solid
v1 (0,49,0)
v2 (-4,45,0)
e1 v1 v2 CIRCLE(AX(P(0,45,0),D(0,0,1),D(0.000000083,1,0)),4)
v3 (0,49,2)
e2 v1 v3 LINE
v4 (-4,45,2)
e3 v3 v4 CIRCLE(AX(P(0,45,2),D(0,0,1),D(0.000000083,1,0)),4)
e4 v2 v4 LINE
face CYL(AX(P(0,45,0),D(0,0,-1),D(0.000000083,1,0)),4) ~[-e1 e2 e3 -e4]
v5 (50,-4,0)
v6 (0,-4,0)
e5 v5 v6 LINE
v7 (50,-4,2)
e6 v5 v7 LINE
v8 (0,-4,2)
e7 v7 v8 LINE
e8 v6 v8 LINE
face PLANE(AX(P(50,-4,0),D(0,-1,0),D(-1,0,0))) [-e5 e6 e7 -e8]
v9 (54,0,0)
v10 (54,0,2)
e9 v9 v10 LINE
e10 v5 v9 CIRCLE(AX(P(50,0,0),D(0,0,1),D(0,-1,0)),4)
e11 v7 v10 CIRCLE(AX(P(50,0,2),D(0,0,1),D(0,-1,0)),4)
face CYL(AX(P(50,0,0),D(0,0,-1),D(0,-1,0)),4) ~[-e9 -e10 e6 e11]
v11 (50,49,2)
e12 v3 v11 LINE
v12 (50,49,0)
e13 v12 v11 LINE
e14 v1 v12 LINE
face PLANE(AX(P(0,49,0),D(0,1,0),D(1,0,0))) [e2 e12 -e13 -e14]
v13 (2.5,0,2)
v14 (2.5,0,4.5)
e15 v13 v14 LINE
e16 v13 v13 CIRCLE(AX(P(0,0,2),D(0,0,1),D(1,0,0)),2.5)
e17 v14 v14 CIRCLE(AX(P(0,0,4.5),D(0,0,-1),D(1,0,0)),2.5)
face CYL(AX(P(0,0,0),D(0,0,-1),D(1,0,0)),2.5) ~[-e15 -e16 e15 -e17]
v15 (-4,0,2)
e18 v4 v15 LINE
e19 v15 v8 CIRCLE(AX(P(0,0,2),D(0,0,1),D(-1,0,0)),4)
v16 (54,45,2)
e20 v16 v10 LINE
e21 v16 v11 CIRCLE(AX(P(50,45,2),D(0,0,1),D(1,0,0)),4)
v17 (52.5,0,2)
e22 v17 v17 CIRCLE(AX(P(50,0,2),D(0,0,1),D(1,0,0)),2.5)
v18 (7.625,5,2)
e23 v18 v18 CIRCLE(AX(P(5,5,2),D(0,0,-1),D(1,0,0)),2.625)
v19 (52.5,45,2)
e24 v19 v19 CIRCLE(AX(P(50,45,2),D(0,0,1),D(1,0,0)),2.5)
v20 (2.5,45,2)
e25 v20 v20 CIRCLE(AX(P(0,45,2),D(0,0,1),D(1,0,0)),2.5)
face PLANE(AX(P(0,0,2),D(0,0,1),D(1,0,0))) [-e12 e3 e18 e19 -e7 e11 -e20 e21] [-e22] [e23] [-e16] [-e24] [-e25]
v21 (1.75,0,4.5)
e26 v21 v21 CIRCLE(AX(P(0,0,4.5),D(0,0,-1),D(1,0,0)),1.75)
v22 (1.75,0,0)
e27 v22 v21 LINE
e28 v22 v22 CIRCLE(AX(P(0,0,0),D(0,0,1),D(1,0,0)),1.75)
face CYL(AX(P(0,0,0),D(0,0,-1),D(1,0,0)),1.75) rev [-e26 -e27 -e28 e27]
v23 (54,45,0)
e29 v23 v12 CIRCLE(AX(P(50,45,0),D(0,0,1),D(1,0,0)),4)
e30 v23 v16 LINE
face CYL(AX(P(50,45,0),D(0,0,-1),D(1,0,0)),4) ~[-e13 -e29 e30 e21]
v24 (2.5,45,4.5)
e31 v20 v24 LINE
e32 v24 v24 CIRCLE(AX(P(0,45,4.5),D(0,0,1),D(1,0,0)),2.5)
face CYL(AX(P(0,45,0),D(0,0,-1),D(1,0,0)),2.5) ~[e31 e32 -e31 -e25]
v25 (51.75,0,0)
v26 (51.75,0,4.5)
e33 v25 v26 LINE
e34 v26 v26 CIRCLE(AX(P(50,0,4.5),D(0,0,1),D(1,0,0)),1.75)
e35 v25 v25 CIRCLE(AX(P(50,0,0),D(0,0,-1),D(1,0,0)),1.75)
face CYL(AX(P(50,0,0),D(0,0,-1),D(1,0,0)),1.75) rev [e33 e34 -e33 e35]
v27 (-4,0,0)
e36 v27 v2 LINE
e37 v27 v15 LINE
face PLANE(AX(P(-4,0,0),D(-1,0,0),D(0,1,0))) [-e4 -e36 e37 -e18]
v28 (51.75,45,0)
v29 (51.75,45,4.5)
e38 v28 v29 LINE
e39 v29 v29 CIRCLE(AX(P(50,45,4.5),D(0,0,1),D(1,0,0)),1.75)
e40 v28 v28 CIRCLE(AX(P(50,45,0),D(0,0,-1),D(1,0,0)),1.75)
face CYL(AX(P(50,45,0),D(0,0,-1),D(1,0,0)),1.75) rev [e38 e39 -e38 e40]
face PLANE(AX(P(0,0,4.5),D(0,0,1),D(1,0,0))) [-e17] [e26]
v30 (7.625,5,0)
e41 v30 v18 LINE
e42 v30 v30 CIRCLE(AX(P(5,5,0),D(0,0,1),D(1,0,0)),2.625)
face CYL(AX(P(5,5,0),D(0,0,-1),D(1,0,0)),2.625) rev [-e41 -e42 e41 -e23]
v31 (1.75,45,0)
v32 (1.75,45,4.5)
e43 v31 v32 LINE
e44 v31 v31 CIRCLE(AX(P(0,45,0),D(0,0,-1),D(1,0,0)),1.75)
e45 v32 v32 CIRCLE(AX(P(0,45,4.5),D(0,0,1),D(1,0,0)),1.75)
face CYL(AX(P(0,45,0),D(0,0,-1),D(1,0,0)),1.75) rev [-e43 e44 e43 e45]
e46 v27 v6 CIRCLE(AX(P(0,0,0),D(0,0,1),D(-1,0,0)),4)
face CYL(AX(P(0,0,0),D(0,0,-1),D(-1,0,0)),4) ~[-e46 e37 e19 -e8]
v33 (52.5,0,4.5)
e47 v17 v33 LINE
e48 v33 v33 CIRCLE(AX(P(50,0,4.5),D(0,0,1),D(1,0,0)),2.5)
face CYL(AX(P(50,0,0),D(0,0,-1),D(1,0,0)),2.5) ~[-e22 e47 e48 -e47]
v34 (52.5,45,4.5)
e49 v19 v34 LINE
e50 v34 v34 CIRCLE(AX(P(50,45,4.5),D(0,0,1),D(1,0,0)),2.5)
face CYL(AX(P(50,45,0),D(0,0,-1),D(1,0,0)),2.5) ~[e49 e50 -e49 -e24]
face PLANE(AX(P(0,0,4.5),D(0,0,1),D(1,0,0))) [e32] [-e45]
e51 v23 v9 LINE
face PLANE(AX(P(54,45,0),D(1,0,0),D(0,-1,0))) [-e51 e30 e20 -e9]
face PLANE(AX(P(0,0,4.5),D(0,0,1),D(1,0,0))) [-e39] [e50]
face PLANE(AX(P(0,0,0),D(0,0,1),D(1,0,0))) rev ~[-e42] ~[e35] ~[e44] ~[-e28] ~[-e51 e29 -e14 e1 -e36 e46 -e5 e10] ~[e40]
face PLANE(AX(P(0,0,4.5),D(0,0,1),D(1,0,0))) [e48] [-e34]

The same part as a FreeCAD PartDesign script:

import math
import FreeCAD as App
import Part
import Sketcher
Q = App.Units.Quantity

doc = App.newDocument("Part")
body = doc.addObject("PartDesign::Body", "Body")

# Sketch on XY plane
sketch1 = body.newObject("Sketcher::SketchObject", "Sketch")
sketch1.AttachmentSupport = (doc.getObject("XY_Plane"), [""])
sketch1.MapMode = "FlatFace"
sketch1.addGeometry(Part.LineSegment(App.Vector(54, 0, 0), App.Vector(54, 45, 0)), False)
sketch1.addGeometry(Part.ArcOfCircle(Part.Circle(App.Vector(50, 45, 0), App.Vector(0, 0, 1), 4), math.radians(0), math.radians(90)), False)
sketch1.addGeometry(Part.LineSegment(App.Vector(50, 49, 0), App.Vector(0, 49, 0)), False)
sketch1.addGeometry(Part.ArcOfCircle(Part.Circle(App.Vector(0, 45, 0), App.Vector(0, 0, 1), 4), math.radians(90), math.radians(180)), False)
sketch1.addGeometry(Part.LineSegment(App.Vector(-4, 45, 0), App.Vector(-4, 0, 0)), False)
sketch1.addGeometry(Part.ArcOfCircle(Part.Circle(App.Vector(0, 0, 0), App.Vector(0, 0, 1), 4), math.radians(180), math.radians(270)), False)
sketch1.addGeometry(Part.LineSegment(App.Vector(0, -4, 0), App.Vector(50, -4, 0)), False)
sketch1.addGeometry(Part.ArcOfCircle(Part.Circle(App.Vector(50, 0, 0), App.Vector(0, 0, 1), 4), math.radians(-90), math.radians(0)), False)
sketch1.addGeometry(Part.Circle(App.Vector(0, 0, 0), App.Vector(0, 0, 1), 2.5), False)
sketch1.addGeometry(Part.Circle(App.Vector(50, 0, 0), App.Vector(0, 0, 1), 2.5), False)
sketch1.addGeometry(Part.Circle(App.Vector(0, 45, 0), App.Vector(0, 0, 1), 2.5), False)
sketch1.addGeometry(Part.Circle(App.Vector(50, 45, 0), App.Vector(0, 0, 1), 2.5), False)
sketch1.addConstraint(Sketcher.Constraint("Tangent", 0, 2, 1, 1))
sketch1.addConstraint(Sketcher.Constraint("Tangent", 1, 2, 2, 1))
sketch1.addConstraint(Sketcher.Constraint("Tangent", 2, 2, 3, 1))
sketch1.addConstraint(Sketcher.Constraint("Tangent", 3, 2, 4, 1))
sketch1.addConstraint(Sketcher.Constraint("Tangent", 4, 2, 5, 1))
sketch1.addConstraint(Sketcher.Constraint("Tangent", 5, 2, 6, 1))
sketch1.addConstraint(Sketcher.Constraint("Tangent", 6, 2, 7, 1))
sketch1.addConstraint(Sketcher.Constraint("Tangent", 7, 2, 0, 1))
sketch1.addConstraint(Sketcher.Constraint("Vertical", 0))
sketch1.addConstraint(Sketcher.Constraint("Horizontal", 2))
sketch1.addConstraint(Sketcher.Constraint("Vertical", 4))
sketch1.addConstraint(Sketcher.Constraint("Horizontal", 6))
sketch1.addConstraint(Sketcher.Constraint("Coincident", 5, 3, -1, 1))
sketch1.addConstraint(Sketcher.Constraint("Coincident", 8, 3, -1, 1))
sketch1.addConstraint(Sketcher.Constraint("Coincident", 9, 3, 7, 3))
sketch1.addConstraint(Sketcher.Constraint("Coincident", 10, 3, 3, 3))
sketch1.addConstraint(Sketcher.Constraint("Coincident", 11, 3, 1, 3))
sketch1.addConstraint(Sketcher.Constraint("Equal", 1, 3))
sketch1.addConstraint(Sketcher.Constraint("Equal", 3, 5))
sketch1.addConstraint(Sketcher.Constraint("Equal", 5, 7))
sketch1.addConstraint(Sketcher.Constraint("Equal", 8, 9))
sketch1.addConstraint(Sketcher.Constraint("Equal", 9, 10))
sketch1.addConstraint(Sketcher.Constraint("Equal", 10, 11))
sketch1.addConstraint(Sketcher.Constraint("Diameter", 8, Q("5 mm")))
sketch1.addConstraint(Sketcher.Constraint("Radius", 1, Q("4 mm")))
sketch1.addConstraint(Sketcher.Constraint("DistanceX", 2, 2, 2, 1, Q("50 mm")))
sketch1.addConstraint(Sketcher.Constraint("DistanceY", 0, 1, 0, 2, Q("45 mm")))
pad1 = body.newObject("PartDesign::Pad", "Pad")
pad1.Profile = sketch1
pad1.Length = 2

# Sketch on XY plane
sketch2 = body.newObject("Sketcher::SketchObject", "Sketch001")
sketch2.AttachmentSupport = (doc.getObject("XY_Plane"), [""])
sketch2.MapMode = "FlatFace"
sketch2.addGeometry(Part.Circle(App.Vector(0, 0, 0), App.Vector(0, 0, 1), 2.5), False)
sketch2.addGeometry(Part.Circle(App.Vector(0, 0, 0), App.Vector(0, 0, 1), 1.8), False)
sketch2.addGeometry(Part.Circle(App.Vector(0, 45, 0), App.Vector(0, 0, 1), 2.5), False)
sketch2.addGeometry(Part.Circle(App.Vector(0, 45, 0), App.Vector(0, 0, 1), 1.8), False)
sketch2.addGeometry(Part.Circle(App.Vector(50, 45, 0), App.Vector(0, 0, 1), 2.5), False)
sketch2.addGeometry(Part.Circle(App.Vector(50, 45, 0), App.Vector(0, 0, 1), 1.8), False)
sketch2.addGeometry(Part.Circle(App.Vector(50, 0, 0), App.Vector(0, 0, 1), 2.5), False)
sketch2.addGeometry(Part.Circle(App.Vector(50, 0, 0), App.Vector(0, 0, 1), 1.8), False)
sketch2.addConstraint(Sketcher.Constraint("Coincident", 0, 3, -1, 1))
sketch2.addConstraint(Sketcher.Constraint("Coincident", 1, 3, -1, 1))
sketch2.addConstraint(Sketcher.Constraint("Coincident", 3, 3, 2, 3))
sketch2.addConstraint(Sketcher.Constraint("Coincident", 5, 3, 4, 3))
sketch2.addConstraint(Sketcher.Constraint("Coincident", 7, 3, 6, 3))
sketch2.addConstraint(Sketcher.Constraint("Equal", 0, 2))
sketch2.addConstraint(Sketcher.Constraint("Equal", 1, 3))
sketch2.addConstraint(Sketcher.Constraint("Equal", 2, 4))
sketch2.addConstraint(Sketcher.Constraint("Equal", 3, 5))
sketch2.addConstraint(Sketcher.Constraint("Equal", 4, 6))
sketch2.addConstraint(Sketcher.Constraint("Equal", 5, 7))
sketch2.addConstraint(Sketcher.Constraint("PointOnObject", 2, 3, -2))
sketch2.addConstraint(Sketcher.Constraint("PointOnObject", 6, 3, -1))
sketch2.addConstraint(Sketcher.Constraint("Horizontal", 3, 3, 4, 3))
sketch2.addConstraint(Sketcher.Constraint("Vertical", 5, 3, 6, 3))
sketch2.addConstraint(Sketcher.Constraint("Diameter", 0, Q("5 mm")))
sketch2.addConstraint(Sketcher.Constraint("Diameter", 1, Q("3.5 mm")))
sketch2.addConstraint(Sketcher.Constraint("DistanceY", -1, 1, 2, 3, Q("45 mm")))
sketch2.addConstraint(Sketcher.Constraint("DistanceX", -1, 1, 4, 3, Q("50 mm")))
pad2 = body.newObject("PartDesign::Pad", "Pad001")
pad2.Profile = sketch2
pad2.Length = 4.5

# Sketch on XY plane
sketch3 = body.newObject("Sketcher::SketchObject", "Sketch002")
sketch3.AttachmentSupport = (doc.getObject("XY_Plane"), [""])
sketch3.MapMode = "FlatFace"
sketch3.addGeometry(Part.Circle(App.Vector(5, 5, 0), App.Vector(0, 0, 1), 2.6), False)
sketch3.addConstraint(Sketcher.Constraint("Diameter", 0, Q("5.25 mm")))
sketch3.addConstraint(Sketcher.Constraint("DistanceX", -1, 1, 0, 3, Q("5 mm")))
sketch3.addConstraint(Sketcher.Constraint("DistanceY", -1, 1, 0, 3, Q("5 mm")))
pocket1 = body.newObject("PartDesign::Pocket", "Pocket")
pocket1.Profile = sketch3
pocket1.Length = 10
pocket1.Reversed = True

doc.recompute()
